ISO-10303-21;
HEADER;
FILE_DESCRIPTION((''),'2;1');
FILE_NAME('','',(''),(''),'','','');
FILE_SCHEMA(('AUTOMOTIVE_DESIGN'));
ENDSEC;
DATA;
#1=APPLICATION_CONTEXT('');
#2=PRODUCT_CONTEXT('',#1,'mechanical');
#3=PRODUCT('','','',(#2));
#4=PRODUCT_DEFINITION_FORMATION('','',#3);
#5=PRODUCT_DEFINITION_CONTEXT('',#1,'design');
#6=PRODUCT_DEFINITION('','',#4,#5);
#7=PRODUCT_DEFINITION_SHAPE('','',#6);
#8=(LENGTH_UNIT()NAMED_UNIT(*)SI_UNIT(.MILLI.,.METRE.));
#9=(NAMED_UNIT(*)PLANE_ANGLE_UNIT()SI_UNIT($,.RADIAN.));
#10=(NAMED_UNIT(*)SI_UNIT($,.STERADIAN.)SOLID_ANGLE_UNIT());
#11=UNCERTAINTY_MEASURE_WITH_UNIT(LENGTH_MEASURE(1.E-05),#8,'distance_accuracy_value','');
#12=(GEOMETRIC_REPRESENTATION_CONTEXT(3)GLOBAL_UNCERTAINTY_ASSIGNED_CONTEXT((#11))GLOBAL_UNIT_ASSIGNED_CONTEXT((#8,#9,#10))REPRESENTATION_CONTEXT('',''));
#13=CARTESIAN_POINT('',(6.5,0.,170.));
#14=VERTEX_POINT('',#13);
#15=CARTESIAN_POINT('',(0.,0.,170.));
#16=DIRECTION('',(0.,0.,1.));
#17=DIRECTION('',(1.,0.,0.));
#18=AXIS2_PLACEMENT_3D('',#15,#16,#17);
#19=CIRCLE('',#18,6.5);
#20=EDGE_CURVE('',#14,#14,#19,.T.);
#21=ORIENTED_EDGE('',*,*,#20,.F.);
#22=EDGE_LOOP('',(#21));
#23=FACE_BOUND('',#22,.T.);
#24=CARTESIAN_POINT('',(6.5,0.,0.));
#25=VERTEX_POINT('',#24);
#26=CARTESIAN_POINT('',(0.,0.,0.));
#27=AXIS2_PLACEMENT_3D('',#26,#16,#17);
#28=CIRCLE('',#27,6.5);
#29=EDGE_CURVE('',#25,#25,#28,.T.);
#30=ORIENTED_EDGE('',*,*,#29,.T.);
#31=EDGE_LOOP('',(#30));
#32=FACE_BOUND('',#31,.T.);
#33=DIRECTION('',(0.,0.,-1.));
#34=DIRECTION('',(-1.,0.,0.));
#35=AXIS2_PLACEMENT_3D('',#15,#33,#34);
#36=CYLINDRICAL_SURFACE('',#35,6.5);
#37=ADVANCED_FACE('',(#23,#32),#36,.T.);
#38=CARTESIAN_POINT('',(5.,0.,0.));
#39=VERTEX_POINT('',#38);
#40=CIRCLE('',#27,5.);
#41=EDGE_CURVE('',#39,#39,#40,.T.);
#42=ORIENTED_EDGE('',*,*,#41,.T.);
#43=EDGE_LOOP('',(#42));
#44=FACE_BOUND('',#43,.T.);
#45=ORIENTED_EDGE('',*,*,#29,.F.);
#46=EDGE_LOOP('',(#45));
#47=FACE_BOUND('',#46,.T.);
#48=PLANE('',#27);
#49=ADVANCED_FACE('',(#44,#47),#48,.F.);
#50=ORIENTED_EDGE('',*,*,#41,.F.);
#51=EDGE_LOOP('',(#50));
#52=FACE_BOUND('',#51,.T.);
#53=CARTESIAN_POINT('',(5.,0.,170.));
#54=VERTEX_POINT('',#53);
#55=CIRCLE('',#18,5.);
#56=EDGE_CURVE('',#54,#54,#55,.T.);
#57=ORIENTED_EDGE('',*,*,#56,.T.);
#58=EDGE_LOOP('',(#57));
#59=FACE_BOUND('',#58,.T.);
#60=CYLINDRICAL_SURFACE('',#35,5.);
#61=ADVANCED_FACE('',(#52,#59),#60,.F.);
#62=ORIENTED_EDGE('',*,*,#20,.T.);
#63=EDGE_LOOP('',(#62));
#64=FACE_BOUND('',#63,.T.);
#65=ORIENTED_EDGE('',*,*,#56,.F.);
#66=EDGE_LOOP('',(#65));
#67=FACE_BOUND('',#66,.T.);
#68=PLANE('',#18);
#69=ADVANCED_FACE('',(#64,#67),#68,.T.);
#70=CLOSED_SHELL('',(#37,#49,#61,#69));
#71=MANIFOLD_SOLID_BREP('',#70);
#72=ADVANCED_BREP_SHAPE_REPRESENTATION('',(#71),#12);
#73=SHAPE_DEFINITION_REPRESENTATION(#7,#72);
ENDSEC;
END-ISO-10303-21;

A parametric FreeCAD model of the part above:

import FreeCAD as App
import Part
import Sketcher

V = App.Vector

doc = App.newDocument("Part")
body = doc.addObject("PartDesign::Body", "Body")

# Sketch on XY plane
sketch1 = doc.addObject("Sketcher::SketchObject", "Sketch")
body.addObject(sketch1)
sketch1.AttachmentSupport = (doc.XY_Plane, [""])
sketch1.MapMode = "FlatFace"
sketch1.addGeometry(Part.Circle(V(0, 0, 0), V(0, 0, 1), 6.5), False)
sketch1.addGeometry(Part.Circle(V(0, 0, 0), V(0, 0, 1), 5), False)
sketch1.addConstraint(Sketcher.Constraint("Coincident", 0, 3, -1, 1))
sketch1.addConstraint(Sketcher.Constraint("Coincident", 1, 3, -1, 1))
sketch1.addConstraint(Sketcher.Constraint("Diameter", 0, 13.0))
sketch1.addConstraint(Sketcher.Constraint("Diameter", 1, 10.0))
pad1 = doc.addObject("PartDesign::Pad", "Pad")
body.addObject(pad1)
pad1.Profile = sketch1
pad1.Length = 170

doc.recompute()
